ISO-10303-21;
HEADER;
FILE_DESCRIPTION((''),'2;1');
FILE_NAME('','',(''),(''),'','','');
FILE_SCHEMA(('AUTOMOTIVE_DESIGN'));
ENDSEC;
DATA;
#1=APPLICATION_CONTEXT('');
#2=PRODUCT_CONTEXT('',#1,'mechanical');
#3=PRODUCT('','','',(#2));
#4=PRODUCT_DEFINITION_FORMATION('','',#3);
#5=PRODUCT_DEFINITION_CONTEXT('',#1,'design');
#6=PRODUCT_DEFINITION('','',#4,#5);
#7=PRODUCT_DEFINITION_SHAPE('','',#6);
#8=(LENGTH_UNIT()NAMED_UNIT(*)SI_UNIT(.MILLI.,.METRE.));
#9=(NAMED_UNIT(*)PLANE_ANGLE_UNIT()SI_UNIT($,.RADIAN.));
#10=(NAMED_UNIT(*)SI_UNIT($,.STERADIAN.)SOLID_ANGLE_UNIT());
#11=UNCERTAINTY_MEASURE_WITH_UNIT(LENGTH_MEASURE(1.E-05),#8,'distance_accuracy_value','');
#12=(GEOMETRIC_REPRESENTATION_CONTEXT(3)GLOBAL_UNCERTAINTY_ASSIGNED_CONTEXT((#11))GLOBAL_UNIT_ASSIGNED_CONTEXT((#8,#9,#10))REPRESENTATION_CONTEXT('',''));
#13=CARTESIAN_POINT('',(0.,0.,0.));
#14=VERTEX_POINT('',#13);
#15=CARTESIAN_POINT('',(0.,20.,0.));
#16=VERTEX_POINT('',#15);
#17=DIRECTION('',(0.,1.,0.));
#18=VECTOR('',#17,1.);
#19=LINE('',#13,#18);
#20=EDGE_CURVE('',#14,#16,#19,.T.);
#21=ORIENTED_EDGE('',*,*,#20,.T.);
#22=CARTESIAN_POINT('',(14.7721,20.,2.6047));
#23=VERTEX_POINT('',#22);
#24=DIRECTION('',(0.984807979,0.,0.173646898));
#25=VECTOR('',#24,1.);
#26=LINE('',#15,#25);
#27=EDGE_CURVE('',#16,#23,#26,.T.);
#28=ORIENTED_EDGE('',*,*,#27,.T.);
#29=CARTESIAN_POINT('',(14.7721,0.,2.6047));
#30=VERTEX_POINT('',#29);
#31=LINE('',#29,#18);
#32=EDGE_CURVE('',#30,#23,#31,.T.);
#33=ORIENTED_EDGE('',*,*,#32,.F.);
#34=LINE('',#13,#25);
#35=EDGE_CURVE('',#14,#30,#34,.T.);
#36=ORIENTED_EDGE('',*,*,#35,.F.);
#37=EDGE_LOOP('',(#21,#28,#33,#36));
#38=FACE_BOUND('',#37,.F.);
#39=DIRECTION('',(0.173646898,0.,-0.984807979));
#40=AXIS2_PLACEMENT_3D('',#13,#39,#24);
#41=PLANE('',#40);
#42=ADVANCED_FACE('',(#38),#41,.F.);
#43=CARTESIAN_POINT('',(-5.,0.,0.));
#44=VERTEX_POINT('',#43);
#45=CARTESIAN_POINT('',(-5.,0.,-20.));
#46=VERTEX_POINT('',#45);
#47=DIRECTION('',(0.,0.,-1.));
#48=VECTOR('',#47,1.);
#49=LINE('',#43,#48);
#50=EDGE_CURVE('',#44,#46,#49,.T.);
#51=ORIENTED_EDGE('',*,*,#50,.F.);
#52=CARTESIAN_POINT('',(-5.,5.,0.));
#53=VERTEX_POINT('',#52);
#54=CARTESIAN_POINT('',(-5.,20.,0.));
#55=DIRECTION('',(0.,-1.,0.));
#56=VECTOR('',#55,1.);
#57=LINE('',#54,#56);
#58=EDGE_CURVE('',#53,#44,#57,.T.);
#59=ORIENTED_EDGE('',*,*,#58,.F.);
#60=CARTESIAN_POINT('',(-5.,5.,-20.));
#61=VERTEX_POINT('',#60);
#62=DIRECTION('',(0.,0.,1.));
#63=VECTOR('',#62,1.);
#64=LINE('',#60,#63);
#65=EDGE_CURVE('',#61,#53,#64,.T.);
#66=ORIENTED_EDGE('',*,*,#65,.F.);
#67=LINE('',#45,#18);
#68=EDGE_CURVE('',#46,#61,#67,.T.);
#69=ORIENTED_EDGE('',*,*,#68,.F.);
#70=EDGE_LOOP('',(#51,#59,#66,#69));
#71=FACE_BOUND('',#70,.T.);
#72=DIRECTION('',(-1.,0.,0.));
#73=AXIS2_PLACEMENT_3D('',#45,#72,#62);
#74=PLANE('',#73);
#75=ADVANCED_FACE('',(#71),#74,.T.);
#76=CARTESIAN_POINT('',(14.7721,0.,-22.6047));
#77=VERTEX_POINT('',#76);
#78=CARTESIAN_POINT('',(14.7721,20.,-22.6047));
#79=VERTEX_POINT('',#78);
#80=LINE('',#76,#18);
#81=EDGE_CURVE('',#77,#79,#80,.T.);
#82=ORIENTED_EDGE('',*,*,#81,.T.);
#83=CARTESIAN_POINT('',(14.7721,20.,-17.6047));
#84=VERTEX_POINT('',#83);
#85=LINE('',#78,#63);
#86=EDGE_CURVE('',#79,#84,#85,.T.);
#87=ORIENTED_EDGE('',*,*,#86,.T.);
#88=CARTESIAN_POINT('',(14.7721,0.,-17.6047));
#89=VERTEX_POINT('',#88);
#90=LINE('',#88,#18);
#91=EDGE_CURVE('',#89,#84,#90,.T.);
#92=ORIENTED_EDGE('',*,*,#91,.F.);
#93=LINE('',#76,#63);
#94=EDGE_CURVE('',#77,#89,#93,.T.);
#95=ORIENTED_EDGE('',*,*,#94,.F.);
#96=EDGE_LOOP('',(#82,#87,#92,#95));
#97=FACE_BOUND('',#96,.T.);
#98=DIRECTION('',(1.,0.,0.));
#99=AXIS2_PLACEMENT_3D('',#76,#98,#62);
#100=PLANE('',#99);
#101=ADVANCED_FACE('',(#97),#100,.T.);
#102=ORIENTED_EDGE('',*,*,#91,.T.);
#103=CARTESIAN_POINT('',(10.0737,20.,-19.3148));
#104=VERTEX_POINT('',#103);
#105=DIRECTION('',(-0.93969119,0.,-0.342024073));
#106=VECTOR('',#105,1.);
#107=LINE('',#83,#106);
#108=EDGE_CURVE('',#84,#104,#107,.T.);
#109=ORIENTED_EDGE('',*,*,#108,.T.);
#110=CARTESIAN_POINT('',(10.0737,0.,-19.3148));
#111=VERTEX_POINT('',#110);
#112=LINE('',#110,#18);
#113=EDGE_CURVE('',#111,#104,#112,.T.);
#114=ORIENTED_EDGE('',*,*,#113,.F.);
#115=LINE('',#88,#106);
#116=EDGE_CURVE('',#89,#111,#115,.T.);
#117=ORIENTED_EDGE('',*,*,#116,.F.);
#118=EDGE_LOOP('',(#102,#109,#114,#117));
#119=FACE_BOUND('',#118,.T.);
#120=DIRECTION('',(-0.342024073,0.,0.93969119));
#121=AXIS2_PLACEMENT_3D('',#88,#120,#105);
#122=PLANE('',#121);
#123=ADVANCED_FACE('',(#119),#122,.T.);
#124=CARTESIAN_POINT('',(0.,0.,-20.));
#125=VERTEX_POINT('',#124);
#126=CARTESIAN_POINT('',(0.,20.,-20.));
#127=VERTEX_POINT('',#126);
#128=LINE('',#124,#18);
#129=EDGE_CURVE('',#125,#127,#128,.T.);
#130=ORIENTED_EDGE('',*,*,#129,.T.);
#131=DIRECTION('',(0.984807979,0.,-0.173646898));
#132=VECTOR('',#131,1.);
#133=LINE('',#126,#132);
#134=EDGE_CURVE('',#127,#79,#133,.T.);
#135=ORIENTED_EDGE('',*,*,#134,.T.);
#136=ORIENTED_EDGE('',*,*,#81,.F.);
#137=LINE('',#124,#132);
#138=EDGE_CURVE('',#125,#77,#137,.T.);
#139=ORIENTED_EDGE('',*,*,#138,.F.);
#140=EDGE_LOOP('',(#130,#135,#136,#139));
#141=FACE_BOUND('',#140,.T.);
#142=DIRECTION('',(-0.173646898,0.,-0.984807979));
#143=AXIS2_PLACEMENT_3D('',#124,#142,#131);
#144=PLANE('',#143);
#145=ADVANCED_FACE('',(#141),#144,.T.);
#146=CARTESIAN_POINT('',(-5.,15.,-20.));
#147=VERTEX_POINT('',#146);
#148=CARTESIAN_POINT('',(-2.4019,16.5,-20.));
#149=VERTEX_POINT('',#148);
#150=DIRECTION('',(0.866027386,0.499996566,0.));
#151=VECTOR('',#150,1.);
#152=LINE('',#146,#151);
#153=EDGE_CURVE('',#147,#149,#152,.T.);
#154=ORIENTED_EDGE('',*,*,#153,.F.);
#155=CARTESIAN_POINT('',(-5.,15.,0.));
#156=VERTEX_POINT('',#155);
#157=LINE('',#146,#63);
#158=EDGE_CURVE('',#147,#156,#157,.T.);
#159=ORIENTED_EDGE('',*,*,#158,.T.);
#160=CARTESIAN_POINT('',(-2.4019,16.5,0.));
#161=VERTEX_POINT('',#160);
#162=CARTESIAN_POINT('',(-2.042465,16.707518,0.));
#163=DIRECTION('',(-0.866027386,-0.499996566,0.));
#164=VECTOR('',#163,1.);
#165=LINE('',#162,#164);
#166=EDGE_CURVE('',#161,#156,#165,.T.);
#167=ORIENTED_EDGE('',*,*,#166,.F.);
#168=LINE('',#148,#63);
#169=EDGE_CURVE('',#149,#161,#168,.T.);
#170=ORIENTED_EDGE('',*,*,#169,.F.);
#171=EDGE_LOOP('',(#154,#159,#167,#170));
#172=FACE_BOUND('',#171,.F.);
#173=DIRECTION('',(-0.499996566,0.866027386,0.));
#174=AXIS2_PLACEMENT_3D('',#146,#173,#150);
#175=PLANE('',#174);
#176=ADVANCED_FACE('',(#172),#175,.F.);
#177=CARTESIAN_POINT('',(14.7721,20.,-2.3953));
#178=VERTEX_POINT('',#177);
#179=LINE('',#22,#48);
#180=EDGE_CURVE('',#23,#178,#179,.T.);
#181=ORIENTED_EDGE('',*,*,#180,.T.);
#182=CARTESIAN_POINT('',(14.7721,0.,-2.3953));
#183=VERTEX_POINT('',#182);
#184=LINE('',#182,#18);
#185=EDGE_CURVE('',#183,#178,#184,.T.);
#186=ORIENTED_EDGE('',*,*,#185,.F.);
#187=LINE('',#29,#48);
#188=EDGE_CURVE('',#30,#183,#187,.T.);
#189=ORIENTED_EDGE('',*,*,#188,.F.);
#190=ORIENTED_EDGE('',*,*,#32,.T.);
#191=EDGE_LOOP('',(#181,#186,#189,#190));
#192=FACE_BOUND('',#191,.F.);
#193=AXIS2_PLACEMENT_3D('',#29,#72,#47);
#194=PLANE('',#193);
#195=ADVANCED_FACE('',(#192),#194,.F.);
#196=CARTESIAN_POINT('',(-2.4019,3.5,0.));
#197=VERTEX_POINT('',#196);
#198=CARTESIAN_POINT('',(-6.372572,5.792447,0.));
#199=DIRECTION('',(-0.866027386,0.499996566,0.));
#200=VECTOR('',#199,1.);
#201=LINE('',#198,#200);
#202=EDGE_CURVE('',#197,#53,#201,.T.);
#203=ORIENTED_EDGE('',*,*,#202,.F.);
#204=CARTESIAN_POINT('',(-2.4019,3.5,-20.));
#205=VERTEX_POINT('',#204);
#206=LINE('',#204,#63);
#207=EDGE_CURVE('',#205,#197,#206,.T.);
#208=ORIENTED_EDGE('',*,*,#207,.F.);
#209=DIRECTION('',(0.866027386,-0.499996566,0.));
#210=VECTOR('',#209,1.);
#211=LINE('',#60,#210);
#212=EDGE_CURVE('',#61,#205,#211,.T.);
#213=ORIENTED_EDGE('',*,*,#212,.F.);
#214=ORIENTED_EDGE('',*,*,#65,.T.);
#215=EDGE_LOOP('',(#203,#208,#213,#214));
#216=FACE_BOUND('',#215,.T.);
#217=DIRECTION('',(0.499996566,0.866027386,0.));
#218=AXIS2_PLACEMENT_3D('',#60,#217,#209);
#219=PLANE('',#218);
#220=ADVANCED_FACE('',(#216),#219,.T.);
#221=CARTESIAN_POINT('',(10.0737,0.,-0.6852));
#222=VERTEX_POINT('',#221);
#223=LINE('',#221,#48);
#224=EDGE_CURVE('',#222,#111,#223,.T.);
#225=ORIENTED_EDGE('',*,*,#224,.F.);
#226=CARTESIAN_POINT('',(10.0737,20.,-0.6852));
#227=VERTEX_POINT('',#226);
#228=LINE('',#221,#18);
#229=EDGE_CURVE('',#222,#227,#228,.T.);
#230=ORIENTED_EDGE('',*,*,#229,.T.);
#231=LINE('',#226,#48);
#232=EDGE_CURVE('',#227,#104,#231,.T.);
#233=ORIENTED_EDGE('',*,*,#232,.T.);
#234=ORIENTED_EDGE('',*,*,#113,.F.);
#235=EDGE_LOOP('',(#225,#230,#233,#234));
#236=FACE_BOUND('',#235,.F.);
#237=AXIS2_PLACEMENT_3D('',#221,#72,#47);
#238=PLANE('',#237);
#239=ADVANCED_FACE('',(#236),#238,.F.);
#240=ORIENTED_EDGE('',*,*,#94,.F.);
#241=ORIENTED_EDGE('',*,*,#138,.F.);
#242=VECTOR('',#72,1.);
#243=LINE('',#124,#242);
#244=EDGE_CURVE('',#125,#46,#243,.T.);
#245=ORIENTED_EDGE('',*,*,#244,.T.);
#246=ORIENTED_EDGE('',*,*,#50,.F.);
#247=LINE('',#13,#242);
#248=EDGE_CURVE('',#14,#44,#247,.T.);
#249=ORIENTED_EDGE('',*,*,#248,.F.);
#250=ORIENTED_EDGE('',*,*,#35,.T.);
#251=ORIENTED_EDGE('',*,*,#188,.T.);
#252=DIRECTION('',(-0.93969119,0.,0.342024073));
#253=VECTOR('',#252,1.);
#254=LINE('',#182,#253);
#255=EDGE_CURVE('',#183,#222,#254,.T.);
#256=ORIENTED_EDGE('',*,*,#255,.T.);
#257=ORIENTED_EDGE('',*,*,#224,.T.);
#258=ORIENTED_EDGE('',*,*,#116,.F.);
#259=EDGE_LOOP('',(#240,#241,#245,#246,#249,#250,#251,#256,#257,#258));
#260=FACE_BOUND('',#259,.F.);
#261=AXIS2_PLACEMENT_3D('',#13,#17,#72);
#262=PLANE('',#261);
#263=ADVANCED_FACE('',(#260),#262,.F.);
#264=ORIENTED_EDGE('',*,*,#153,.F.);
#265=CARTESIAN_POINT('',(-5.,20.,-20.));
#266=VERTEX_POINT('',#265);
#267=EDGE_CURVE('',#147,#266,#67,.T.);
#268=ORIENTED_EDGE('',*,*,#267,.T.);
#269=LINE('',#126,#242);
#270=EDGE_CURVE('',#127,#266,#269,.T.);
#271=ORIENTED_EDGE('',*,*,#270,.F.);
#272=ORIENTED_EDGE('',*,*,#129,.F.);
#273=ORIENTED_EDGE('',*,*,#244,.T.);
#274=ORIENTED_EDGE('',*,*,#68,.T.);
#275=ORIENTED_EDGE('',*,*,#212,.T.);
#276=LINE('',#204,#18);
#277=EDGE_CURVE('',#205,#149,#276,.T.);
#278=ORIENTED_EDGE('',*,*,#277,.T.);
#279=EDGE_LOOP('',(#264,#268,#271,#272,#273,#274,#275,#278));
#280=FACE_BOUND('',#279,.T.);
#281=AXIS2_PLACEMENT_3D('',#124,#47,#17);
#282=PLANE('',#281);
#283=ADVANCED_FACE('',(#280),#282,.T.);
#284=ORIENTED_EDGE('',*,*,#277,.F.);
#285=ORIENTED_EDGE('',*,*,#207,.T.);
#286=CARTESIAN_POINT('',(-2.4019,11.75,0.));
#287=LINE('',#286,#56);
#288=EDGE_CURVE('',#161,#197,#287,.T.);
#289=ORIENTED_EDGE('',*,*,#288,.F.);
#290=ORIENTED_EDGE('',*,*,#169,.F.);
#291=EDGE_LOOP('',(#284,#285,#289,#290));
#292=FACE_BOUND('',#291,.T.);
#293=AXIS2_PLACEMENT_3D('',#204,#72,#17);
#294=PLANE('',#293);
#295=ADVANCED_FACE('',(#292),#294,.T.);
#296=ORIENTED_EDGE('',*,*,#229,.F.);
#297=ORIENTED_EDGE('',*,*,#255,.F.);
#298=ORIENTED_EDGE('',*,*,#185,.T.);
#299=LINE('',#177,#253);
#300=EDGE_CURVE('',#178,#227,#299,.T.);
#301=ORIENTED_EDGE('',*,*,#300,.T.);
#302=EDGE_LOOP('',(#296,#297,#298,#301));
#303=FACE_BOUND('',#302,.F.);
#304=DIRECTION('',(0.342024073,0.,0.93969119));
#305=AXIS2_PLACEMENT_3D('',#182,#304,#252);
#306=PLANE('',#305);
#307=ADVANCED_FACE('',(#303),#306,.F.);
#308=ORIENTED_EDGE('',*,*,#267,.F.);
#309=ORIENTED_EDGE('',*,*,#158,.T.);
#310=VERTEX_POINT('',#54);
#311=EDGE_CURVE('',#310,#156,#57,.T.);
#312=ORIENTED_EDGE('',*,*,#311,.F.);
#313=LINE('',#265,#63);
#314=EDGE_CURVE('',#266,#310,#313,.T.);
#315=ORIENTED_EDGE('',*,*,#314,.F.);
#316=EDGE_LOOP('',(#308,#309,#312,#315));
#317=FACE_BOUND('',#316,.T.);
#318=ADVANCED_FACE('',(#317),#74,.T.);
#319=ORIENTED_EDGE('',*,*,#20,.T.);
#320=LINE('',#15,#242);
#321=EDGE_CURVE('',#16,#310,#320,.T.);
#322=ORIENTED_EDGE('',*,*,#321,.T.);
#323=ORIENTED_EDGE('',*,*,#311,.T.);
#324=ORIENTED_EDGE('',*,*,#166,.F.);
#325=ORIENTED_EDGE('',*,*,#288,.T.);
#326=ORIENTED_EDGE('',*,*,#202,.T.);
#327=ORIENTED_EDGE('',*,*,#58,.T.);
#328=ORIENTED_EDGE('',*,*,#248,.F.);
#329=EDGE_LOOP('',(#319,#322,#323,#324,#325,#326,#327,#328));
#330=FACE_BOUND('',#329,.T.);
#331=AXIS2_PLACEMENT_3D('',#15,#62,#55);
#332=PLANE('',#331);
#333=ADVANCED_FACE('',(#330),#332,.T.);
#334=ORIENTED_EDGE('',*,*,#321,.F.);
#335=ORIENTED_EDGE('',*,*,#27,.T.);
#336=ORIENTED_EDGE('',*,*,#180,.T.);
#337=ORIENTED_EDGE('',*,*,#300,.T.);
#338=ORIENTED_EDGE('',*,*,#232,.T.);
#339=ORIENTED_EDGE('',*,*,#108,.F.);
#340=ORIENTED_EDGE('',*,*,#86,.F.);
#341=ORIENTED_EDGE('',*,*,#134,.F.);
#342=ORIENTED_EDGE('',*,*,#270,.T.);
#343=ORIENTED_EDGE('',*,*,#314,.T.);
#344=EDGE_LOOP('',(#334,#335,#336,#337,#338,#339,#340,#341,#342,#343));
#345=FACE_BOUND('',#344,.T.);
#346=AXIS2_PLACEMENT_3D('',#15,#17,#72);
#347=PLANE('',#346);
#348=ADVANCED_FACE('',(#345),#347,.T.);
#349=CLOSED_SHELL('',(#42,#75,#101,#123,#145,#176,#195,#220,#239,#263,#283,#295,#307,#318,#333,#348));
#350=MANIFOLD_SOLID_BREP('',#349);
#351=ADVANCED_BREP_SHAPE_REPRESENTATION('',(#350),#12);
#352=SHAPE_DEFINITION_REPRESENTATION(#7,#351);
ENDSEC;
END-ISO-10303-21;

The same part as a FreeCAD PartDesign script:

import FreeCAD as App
import Part
import Sketcher
from FreeCAD import Vector
Q = App.Units.Quantity


def add_polygon(sketch, points):
    """Adds a closed chain of lines whose ends are joined by coincident constraints."""
    first, n = sketch.GeometryCount, len(points)
    for a, b in zip(points, points[1:] + points[:1]):
        sketch.addGeometry(Part.LineSegment(App.Vector(*a, 0), App.Vector(*b, 0)), False)
    for i in range(n):
        sketch.addConstraint(Sketcher.Constraint("Coincident", first + i, 2, first + (i + 1) % n, 1))

doc = App.newDocument("Part")
params = doc.addObject("Spreadsheet::Sheet", "Params")
for row, (alias, value) in enumerate([
    ("sketch1_height", "20 mm"),
    ("sketch1_height2", "5 mm"),
    ("sketch1_length", "15 mm"),
    ("sketch1_length2", "5 mm"),
    ("pad1_length", "20 mm"),
    ("sketch2_width", "20 mm"),
    ("pad2_length", "5 mm"),
    ("sketch3_length", "3 mm"),
    ("sketch3_height", "10 mm"),
    ("pocket1_length", "50 mm"),
], start=1):
    params.set(f"A{row}", alias)
    params.set(f"B{row}", "=" + value)
    params.setAlias(f"B{row}", alias)

body = doc.addObject("PartDesign::Body", "Body")

sketch1 = doc.addObject("Sketcher::SketchObject", "Sketch")
body.addObject(sketch1)
sketch1.AttachmentSupport = (doc.XZ_Plane, [""])
sketch1.MapMode = "FlatFace"
add_polygon(sketch1, [(0, -20), (0, 0), (14.7721, 2.6047), (14.7721, -2.3953), (10.0737, -0.6852), (10.0737, -19.3148), (14.7721, -17.6047), (14.7721, -22.6047)])
sketch1.addConstraint([
    Sketcher.Constraint("Vertical", 0),
    Sketcher.Constraint("Vertical", 2),
    Sketcher.Constraint("Vertical", 4),
    Sketcher.Constraint("Vertical", 6),
    Sketcher.Constraint("Coincident", 0, 2, -1, 1),
    Sketcher.Constraint("Vertical", 2, 2, 5, 2),
    Sketcher.Constraint("Equal", 2, 6),
    Sketcher.Constraint("Equal", 3, 5),
    Sketcher.Constraint("Equal", 1, 7),
    Sketcher.Constraint("DistanceY", 0, 1, 0, 2, 20.0),
    Sketcher.Constraint("DistanceY", 2, 2, 2, 1, 5.0),
    Sketcher.Constraint("Angle", 5, Q("20.0002 deg")),
    Sketcher.Constraint("Distance", 1, 15.0),
    Sketcher.Constraint("Distance", 3, 5.0),
    Sketcher.Constraint("Angle", 1, Q("10 deg")),
])
sketch1.setExpression("Constraints[17]", "Params.sketch1_height")
sketch1.setExpression("Constraints[18]", "Params.sketch1_height2")
sketch1.setExpression("Constraints[20]", "Params.sketch1_length")
sketch1.setExpression("Constraints[21]", "Params.sketch1_length2")
pad1 = doc.addObject("PartDesign::Pad", "Pad")
body.addObject(pad1)
pad1.Profile = sketch1
pad1.setExpression("Length", "Params.pad1_length")
pad1.Reversed = True

sketch2 = doc.addObject("Sketcher::SketchObject", "Sketch001")
body.addObject(sketch2)
sketch2.AttachmentSupport = (doc.YZ_Plane, [""])
sketch2.MapMode = "FlatFace"
add_polygon(sketch2, [(20, -20), (0, -20), (0, 0), (20, 0)])
sketch2.addConstraint([
    Sketcher.Constraint("Horizontal", 0),
    Sketcher.Constraint("Vertical", 1),
    Sketcher.Constraint("Horizontal", 2),
    Sketcher.Constraint("Vertical", 3),
    Sketcher.Constraint("Coincident", 1, 2, -1, 1),
    Sketcher.Constraint("Equal", 2, 1),
    Sketcher.Constraint("DistanceX", 0, 2, 0, 1, 20.0),
])
sketch2.setExpression("Constraints[10]", "Params.sketch2_width")
pad2 = doc.addObject("PartDesign::Pad", "Pad001")
body.addObject(pad2)
pad2.Profile = sketch2
pad2.setExpression("Length", "Params.pad2_length")
pad2.Reversed = True

sketch3 = doc.addObject("Sketcher::SketchObject", "Sketch002")
body.addObject(sketch3)
sketch3.AttachmentSupport = (doc.XY_Plane, [""])
sketch3.MapMode = "FlatFace"
sketch3.AttachmentOffset = App.Placement(Vector(0, 0, -20), App.Rotation())
add_polygon(sketch3, [(-5, 5), (-5, 15), (-2.4019, 16.5), (-2.4019, 3.5)])
sketch3.addConstraint([
    Sketcher.Constraint("Vertical", 0),
    Sketcher.Constraint("Vertical", 2),
    Sketcher.Constraint("Equal", 1, 3),
    Sketcher.Constraint("Angle", 3, Q("150.0002 deg")),
    Sketcher.Constraint("Distance", 1, 3.0),
    Sketcher.Constraint("DistanceX", 0, 2, -1, 1, 5.0),
    Sketcher.Constraint("DistanceY", -1, 1, 3, 2, 5.0),
    Sketcher.Constraint("DistanceY", 0, 1, 0, 2, 10.0),
])
sketch3.setExpression("Constraints[8]", "Params.sketch3_length")
sketch3.setExpression("Constraints[11]", "Params.sketch3_height")
pocket1 = doc.addObject("PartDesign::Pocket", "Pocket")
body.addObject(pocket1)
pocket1.Profile = sketch3
pocket1.setExpression("Length", "Params.pocket1_length")
pocket1.Reversed = True

doc.recompute()
